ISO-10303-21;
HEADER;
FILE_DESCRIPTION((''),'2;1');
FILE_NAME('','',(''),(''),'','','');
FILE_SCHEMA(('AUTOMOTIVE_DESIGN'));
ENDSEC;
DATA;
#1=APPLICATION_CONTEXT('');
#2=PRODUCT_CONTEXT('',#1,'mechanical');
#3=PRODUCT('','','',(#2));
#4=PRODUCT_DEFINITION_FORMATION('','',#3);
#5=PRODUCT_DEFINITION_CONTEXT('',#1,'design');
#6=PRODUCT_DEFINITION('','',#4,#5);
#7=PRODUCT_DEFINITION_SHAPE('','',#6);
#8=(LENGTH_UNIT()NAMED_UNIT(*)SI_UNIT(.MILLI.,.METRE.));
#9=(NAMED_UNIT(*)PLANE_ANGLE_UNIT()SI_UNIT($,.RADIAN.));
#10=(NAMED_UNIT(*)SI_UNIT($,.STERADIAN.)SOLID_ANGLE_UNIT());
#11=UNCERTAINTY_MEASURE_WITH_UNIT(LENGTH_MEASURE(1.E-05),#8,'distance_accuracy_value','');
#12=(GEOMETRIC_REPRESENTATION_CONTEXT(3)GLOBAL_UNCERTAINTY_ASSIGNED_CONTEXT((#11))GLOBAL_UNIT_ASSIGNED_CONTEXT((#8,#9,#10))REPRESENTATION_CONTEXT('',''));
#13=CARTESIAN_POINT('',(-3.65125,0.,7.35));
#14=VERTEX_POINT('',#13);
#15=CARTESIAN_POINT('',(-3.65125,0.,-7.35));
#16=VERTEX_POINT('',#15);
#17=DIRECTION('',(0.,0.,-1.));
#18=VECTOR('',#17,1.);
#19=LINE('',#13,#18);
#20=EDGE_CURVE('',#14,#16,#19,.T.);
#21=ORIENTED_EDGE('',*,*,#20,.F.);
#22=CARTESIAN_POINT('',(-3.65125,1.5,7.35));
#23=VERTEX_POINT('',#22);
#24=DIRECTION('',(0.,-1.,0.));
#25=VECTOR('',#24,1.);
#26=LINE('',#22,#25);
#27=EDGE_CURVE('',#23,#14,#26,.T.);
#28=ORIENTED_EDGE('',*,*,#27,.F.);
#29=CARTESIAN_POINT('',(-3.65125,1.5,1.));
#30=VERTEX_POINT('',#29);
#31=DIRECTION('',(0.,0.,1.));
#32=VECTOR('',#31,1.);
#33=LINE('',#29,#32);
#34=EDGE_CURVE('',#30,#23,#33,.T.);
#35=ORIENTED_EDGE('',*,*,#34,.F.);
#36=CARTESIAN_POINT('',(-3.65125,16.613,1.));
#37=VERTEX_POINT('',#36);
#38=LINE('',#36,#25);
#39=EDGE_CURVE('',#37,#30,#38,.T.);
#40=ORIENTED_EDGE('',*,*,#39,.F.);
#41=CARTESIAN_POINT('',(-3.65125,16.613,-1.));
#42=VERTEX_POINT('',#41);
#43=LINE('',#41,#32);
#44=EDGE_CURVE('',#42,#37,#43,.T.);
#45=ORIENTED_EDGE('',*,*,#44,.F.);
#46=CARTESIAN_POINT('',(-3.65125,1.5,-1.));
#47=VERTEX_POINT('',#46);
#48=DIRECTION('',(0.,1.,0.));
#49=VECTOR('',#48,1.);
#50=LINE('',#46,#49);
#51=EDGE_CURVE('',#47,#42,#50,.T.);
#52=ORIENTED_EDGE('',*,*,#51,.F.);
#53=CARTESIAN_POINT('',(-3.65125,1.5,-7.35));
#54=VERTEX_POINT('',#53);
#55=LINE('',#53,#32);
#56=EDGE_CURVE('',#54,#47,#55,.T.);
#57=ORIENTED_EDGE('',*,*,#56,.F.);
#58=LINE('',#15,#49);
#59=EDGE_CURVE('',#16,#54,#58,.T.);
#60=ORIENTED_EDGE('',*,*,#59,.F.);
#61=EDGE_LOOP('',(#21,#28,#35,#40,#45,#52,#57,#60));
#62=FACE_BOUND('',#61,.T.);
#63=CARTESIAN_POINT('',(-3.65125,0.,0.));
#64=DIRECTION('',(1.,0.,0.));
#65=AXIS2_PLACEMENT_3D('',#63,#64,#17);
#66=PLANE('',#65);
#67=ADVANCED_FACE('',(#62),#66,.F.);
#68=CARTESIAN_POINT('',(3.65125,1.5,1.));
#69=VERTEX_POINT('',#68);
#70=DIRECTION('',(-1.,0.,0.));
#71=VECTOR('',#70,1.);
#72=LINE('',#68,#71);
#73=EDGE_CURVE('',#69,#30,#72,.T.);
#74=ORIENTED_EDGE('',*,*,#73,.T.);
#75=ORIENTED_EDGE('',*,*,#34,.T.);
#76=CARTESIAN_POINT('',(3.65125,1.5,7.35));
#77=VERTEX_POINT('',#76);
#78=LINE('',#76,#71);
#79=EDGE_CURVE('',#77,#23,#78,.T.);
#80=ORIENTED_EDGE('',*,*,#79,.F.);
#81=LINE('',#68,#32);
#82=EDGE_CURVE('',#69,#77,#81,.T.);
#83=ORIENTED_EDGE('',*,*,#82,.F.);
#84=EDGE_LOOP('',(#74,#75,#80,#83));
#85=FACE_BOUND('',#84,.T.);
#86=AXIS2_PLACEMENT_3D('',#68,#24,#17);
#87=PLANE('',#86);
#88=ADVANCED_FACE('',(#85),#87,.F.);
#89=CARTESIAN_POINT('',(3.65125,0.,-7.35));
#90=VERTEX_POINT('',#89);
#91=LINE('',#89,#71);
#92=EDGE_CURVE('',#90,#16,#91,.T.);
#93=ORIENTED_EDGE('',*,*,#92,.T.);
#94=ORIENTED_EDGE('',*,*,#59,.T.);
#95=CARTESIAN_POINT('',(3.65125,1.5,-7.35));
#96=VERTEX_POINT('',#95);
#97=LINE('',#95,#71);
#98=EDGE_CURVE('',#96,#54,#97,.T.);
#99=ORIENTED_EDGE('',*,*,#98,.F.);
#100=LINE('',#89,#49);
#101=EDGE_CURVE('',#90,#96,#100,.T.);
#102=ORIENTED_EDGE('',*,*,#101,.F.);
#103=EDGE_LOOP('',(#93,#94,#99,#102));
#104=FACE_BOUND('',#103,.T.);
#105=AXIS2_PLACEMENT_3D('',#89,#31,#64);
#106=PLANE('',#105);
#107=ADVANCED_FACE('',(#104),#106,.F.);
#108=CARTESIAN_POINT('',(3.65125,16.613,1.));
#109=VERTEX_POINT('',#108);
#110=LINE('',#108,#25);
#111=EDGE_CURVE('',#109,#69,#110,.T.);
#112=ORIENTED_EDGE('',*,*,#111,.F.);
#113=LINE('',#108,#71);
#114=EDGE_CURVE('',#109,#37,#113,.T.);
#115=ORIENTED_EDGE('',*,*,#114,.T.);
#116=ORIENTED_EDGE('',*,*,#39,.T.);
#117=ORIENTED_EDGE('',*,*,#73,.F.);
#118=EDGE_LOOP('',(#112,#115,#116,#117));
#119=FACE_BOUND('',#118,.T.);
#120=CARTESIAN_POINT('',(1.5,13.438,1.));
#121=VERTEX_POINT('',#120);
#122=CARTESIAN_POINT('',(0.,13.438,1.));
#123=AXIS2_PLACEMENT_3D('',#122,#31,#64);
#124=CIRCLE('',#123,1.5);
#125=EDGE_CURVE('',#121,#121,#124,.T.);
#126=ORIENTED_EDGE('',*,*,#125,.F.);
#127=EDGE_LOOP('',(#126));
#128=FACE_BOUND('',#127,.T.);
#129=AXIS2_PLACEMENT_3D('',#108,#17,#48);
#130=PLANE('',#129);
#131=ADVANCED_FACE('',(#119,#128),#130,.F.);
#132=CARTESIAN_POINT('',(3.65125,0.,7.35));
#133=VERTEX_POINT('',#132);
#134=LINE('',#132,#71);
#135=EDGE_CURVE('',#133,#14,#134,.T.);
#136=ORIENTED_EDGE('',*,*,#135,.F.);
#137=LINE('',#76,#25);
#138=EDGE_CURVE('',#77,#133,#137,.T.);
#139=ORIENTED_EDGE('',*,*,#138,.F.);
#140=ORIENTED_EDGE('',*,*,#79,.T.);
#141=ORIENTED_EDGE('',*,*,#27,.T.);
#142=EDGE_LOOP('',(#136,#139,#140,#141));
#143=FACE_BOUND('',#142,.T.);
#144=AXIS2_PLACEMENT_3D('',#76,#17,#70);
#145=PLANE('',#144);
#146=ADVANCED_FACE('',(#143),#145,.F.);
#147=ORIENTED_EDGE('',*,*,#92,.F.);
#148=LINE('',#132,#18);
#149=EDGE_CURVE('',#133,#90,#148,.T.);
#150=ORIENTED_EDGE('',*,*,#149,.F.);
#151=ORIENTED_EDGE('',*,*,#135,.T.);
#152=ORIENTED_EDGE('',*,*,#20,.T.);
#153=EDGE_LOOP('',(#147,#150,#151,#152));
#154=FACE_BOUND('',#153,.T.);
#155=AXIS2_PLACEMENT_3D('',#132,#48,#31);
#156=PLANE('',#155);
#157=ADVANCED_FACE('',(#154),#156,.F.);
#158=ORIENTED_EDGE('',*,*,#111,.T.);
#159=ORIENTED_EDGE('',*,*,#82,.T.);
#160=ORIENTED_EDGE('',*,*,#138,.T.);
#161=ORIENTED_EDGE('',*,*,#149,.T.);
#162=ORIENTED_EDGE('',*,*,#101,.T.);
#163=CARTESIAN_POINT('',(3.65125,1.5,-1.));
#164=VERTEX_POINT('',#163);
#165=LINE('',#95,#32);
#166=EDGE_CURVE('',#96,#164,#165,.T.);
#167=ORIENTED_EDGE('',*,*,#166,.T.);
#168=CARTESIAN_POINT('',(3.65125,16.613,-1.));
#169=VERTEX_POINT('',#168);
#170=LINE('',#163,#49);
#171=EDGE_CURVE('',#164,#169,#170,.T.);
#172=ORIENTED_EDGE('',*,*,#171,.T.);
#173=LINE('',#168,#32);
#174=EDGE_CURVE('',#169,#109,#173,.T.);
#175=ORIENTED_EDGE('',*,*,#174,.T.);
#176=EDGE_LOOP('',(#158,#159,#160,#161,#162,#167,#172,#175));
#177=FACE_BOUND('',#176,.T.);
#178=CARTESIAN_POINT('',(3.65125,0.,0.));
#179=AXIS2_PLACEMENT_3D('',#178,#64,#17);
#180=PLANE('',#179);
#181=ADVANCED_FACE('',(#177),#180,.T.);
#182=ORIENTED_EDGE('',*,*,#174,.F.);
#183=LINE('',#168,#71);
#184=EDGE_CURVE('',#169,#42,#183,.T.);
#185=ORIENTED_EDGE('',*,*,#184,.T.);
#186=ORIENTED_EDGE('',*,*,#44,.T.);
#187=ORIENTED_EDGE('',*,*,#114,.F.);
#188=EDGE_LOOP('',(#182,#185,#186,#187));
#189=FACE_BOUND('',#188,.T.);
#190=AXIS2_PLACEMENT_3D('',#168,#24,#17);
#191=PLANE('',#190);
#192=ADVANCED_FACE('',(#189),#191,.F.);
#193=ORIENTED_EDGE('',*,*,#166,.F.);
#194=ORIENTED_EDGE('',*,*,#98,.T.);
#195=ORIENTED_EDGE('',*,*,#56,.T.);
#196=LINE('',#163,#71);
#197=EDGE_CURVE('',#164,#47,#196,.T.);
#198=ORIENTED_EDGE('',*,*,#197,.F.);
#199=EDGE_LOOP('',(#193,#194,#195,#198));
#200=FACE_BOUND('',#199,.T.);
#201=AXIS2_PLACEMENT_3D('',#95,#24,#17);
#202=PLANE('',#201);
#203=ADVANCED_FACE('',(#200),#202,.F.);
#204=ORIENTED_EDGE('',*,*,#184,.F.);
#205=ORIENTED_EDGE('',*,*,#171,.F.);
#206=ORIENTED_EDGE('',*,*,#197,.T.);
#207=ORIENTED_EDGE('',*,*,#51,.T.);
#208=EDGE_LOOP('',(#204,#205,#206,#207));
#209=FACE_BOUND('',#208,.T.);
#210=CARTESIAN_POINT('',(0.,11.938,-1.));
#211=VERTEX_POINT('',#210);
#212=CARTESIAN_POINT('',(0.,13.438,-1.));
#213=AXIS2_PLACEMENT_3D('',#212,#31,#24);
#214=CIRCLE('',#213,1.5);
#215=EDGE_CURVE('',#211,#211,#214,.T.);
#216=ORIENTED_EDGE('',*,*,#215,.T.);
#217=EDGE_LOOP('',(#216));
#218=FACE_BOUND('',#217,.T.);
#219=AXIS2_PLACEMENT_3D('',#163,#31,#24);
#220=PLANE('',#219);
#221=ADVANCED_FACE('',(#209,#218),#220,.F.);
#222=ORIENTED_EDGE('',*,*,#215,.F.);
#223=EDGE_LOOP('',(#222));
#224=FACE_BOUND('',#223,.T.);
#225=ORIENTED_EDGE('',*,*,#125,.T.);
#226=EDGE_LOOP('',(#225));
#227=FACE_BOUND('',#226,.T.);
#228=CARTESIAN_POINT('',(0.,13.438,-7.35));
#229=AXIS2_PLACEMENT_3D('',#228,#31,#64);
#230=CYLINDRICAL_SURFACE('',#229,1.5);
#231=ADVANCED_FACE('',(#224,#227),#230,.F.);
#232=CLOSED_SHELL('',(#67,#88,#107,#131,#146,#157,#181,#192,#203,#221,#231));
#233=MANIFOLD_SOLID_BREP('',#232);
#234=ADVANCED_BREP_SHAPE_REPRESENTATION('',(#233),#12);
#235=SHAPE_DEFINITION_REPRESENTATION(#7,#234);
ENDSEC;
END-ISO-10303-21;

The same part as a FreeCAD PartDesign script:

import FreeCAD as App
import Part
import Sketcher

V = App.Vector

doc = App.newDocument("Part")
body = doc.addObject("PartDesign::Body", "Body")

# Sketch on YZ plane
sketch1 = doc.addObject("Sketcher::SketchObject", "Sketch")
body.addObject(sketch1)
sketch1.AttachmentSupport = (doc.YZ_Plane, [""])
sketch1.MapMode = "FlatFace"
sketch1.addGeometry(Part.LineSegment(V(0, 7.3, 0), V(0, -7.3, 0)), False)
sketch1.addGeometry(Part.LineSegment(V(0, -7.3, 0), V(1.5, -7.3, 0)), False)
sketch1.addGeometry(Part.LineSegment(V(1.5, -7.3, 0), V(1.5, -1, 0)), False)
sketch1.addGeometry(Part.LineSegment(V(1.5, -1, 0), V(16.6, -1, 0)), False)
sketch1.addGeometry(Part.LineSegment(V(16.6, -1, 0), V(16.6, 1, 0)), False)
sketch1.addGeometry(Part.LineSegment(V(16.6, 1, 0), V(1.5, 1, 0)), False)
sketch1.addGeometry(Part.LineSegment(V(1.5, 1, 0), V(1.5, 7.3, 0)), False)
sketch1.addGeometry(Part.LineSegment(V(1.5, 7.3, 0), V(0, 7.3, 0)), False)
sketch1.addConstraint(Sketcher.Constraint("Coincident", 0, 2, 1, 1))
sketch1.addConstraint(Sketcher.Constraint("Coincident", 1, 2, 2, 1))
sketch1.addConstraint(Sketcher.Constraint("Coincident", 2, 2, 3, 1))
sketch1.addConstraint(Sketcher.Constraint("Coincident", 3, 2, 4, 1))
sketch1.addConstraint(Sketcher.Constraint("Coincident", 4, 2, 5, 1))
sketch1.addConstraint(Sketcher.Constraint("Coincident", 5, 2, 6, 1))
sketch1.addConstraint(Sketcher.Constraint("Coincident", 6, 2, 7, 1))
sketch1.addConstraint(Sketcher.Constraint("Coincident", 7, 2, 0, 1))
sketch1.addConstraint(Sketcher.Constraint("Vertical", 0))
sketch1.addConstraint(Sketcher.Constraint("Horizontal", 1))
sketch1.addConstraint(Sketcher.Constraint("Vertical", 2))
sketch1.addConstraint(Sketcher.Constraint("Horizontal", 3))
sketch1.addConstraint(Sketcher.Constraint("Vertical", 4))
sketch1.addConstraint(Sketcher.Constraint("Horizontal", 5))
sketch1.addConstraint(Sketcher.Constraint("Vertical", 6))
sketch1.addConstraint(Sketcher.Constraint("Horizontal", 7))
sketch1.addConstraint(Sketcher.Constraint("Symmetric", 0, 2, 7, 2, -1, 1))
sketch1.addConstraint(Sketcher.Constraint("Symmetric", 2, 2, 5, 2, -1))
sketch1.addConstraint(Sketcher.Constraint("DistanceY", 4, 1, 4, 2, 2.0))
sketch1.addConstraint(Sketcher.Constraint("DistanceX", 1, 1, 1, 2, 1.5))
sketch1.addConstraint(Sketcher.Constraint("DistanceY", 0, 2, 0, 1, 14.7))
sketch1.addConstraint(Sketcher.Constraint("DistanceX", 3, 1, 3, 2, 15.113))
pad1 = doc.addObject("PartDesign::Pad", "Pad")
body.addObject(pad1)
pad1.Profile = sketch1
pad1.Length = 7.3025
pad1.Midplane = True

# Sketch on XY plane
sketch2 = doc.addObject("Sketcher::SketchObject", "Sketch001")
body.addObject(sketch2)
sketch2.AttachmentSupport = (doc.XY_Plane, [""])
sketch2.MapMode = "FlatFace"
sketch2.AttachmentOffset = App.Placement(V(0, 0, 1), App.Rotation())
sketch2.addGeometry(Part.Circle(V(0, 13.4, 0), V(0, 0, 1), 1.5), False)
sketch2.addConstraint(Sketcher.Constraint("PointOnObject", 0, 3, -2))
sketch2.addConstraint(Sketcher.Constraint("Diameter", 0, 3.0))
sketch2.addConstraint(Sketcher.Constraint("DistanceY", -1, 1, 0, 3, 13.438))
pocket1 = doc.addObject("PartDesign::Pocket", "Pocket")
body.addObject(pocket1)
pocket1.Profile = sketch2
pocket1.Type = "ThroughAll"

doc.recompute()
